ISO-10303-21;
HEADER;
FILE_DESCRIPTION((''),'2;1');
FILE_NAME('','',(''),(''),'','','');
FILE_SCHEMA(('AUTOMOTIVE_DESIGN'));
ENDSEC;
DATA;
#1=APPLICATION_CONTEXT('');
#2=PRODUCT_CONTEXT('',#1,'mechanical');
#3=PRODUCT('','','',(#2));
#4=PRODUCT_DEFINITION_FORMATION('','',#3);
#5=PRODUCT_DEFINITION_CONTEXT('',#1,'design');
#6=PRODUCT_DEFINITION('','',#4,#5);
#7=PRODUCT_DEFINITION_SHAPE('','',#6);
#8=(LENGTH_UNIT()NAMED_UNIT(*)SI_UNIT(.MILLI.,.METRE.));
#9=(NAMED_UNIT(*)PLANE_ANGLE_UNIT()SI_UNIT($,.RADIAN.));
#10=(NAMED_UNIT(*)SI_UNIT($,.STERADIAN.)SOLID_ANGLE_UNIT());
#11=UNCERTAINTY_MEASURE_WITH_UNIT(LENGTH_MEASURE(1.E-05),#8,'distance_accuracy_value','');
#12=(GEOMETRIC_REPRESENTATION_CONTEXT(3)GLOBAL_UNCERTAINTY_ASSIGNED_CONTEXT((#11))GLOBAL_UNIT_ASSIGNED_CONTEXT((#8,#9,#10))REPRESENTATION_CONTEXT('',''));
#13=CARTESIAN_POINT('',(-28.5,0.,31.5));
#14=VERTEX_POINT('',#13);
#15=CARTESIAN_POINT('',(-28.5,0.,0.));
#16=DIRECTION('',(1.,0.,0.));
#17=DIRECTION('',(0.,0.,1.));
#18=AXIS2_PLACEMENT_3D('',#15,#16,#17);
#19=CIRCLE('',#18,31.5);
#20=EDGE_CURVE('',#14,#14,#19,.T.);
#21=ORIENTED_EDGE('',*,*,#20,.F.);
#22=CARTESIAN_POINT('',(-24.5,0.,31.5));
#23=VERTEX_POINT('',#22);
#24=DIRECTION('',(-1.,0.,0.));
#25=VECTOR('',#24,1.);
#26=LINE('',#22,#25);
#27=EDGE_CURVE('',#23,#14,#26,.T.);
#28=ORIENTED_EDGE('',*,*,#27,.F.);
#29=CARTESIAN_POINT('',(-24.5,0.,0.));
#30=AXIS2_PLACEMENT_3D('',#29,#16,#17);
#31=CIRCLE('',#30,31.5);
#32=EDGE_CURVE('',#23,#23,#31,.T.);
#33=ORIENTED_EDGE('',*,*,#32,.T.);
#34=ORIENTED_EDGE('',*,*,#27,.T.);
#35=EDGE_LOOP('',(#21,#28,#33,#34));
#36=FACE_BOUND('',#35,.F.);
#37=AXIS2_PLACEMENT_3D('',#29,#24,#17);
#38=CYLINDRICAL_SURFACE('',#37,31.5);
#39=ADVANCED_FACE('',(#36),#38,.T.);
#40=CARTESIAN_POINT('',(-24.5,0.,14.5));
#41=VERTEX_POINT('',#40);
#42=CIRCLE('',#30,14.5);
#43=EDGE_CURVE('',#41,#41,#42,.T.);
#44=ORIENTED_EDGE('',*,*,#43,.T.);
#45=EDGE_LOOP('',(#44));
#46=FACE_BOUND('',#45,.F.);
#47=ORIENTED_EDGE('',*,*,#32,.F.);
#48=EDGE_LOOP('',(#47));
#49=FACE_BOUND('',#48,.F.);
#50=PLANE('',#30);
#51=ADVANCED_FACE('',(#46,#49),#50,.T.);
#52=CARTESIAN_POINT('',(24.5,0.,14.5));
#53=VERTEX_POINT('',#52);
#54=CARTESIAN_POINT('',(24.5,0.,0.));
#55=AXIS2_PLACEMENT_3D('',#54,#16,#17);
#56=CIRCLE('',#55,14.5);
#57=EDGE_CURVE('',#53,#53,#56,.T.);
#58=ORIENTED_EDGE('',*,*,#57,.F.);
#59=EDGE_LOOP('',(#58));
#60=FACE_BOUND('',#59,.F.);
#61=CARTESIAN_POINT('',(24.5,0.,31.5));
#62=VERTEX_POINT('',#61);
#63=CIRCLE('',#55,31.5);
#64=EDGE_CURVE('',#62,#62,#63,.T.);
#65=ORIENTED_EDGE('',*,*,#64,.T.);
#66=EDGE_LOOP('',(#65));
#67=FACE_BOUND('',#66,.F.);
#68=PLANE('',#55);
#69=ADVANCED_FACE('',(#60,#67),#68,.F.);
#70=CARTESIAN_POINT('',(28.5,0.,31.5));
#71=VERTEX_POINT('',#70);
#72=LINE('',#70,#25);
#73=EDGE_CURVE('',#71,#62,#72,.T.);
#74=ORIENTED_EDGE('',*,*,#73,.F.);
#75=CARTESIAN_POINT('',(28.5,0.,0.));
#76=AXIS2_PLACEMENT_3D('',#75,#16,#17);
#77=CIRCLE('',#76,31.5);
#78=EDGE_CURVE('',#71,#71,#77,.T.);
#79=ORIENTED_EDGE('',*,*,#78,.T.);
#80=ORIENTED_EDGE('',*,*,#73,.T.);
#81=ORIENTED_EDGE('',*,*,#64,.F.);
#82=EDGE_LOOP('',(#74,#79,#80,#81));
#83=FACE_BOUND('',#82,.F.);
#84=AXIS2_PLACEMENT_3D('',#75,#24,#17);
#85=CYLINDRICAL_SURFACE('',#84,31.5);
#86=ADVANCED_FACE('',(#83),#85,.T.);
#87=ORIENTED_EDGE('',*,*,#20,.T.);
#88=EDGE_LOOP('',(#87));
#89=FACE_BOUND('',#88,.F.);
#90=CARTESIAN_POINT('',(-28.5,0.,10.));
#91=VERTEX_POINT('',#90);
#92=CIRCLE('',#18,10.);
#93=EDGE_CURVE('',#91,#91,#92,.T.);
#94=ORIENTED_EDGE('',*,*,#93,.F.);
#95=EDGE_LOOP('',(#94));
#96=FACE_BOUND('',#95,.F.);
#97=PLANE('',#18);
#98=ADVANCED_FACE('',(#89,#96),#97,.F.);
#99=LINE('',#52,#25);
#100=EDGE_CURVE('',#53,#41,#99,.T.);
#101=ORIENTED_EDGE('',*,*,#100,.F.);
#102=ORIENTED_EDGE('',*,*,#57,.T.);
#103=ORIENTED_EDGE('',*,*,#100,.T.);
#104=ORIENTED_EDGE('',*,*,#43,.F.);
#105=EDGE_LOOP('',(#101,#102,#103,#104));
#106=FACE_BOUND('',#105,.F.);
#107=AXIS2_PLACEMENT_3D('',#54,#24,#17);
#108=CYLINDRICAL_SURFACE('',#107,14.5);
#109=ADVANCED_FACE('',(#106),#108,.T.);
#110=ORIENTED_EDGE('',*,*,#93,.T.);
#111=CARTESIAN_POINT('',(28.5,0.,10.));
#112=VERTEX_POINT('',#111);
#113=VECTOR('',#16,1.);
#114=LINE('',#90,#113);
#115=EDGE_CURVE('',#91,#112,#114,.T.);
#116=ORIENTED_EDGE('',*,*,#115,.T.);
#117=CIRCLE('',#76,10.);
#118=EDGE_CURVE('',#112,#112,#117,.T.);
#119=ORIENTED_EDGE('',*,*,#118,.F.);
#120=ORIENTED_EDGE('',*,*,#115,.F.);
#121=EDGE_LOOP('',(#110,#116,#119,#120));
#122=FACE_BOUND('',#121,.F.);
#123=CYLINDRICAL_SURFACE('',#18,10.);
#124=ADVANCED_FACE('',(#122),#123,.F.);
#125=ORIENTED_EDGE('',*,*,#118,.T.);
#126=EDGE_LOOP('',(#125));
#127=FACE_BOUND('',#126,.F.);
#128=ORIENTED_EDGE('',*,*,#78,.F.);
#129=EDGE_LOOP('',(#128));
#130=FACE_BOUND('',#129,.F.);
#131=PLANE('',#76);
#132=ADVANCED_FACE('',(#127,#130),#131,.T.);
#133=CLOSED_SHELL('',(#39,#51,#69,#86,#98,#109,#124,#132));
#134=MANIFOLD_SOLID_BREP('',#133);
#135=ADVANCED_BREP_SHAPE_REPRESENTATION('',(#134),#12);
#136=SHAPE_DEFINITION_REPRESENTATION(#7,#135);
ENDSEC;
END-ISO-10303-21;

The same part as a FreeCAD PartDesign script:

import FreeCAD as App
import Part
import Sketcher

V = App.Vector

doc = App.newDocument("Part")
params = doc.addObject("Spreadsheet::Sheet", "Params")
for row, (alias, value) in enumerate([
    ("sketch1_width", "57 mm"),
    ("sketch1_width2", "4 mm"),
    ("sketch1_height", "17 mm"),
    ("sketch1_height2", "21.5 mm"),
    ("revolution_angle", "360 deg"),
], start=1):
    params.set(f"A{row}", alias)
    params.set(f"B{row}", "=" + value)
    params.setAlias(f"B{row}", alias)

body = doc.addObject("PartDesign::Body", "Body")

# Sketch on XZ plane
sketch1 = body.newObject("Sketcher::SketchObject", "Sketch")
sketch1.AttachmentSupport = (doc.getObject("XZ_Plane"), [""])
sketch1.MapMode = "FlatFace"
sketch1.addGeometry([
    Part.LineSegment(V(-28.5, 10, 0), V(28.5, 10, 0)),  # 0
    Part.LineSegment(V(28.5, 10, 0), V(28.5, 31.5, 0)),  # 1
    Part.LineSegment(V(28.5, 31.5, 0), V(24.5, 31.5, 0)),  # 2
    Part.LineSegment(V(24.5, 31.5, 0), V(24.5, 14.5, 0)),  # 3
    Part.LineSegment(V(24.5, 14.5, 0), V(-24.5, 14.5, 0)),  # 4
    Part.LineSegment(V(-24.5, 14.5, 0), V(-24.5, 31.5, 0)),  # 5
    Part.LineSegment(V(-24.5, 31.5, 0), V(-28.5, 31.5, 0)),  # 6
    Part.LineSegment(V(-28.5, 31.5, 0), V(-28.5, 10, 0)),  # 7
], False)
sketch1.addConstraint([
    Sketcher.Constraint("Coincident", 0, 2, 1, 1),
    Sketcher.Constraint("Coincident", 1, 2, 2, 1),
    Sketcher.Constraint("Coincident", 2, 2, 3, 1),
    Sketcher.Constraint("Coincident", 3, 2, 4, 1),
    Sketcher.Constraint("Coincident", 4, 2, 5, 1),
    Sketcher.Constraint("Coincident", 5, 2, 6, 1),
    Sketcher.Constraint("Coincident", 6, 2, 7, 1),
    Sketcher.Constraint("Coincident", 7, 2, 0, 1),
    Sketcher.Constraint("Horizontal", 0),
    Sketcher.Constraint("Vertical", 1),
    Sketcher.Constraint("Horizontal", 2),
    Sketcher.Constraint("Vertical", 3),
    Sketcher.Constraint("Horizontal", 4),
    Sketcher.Constraint("Vertical", 5),
    Sketcher.Constraint("Horizontal", 6),
    Sketcher.Constraint("Vertical", 7),
    Sketcher.Constraint("Symmetric", 2, 2, 5, 2, -2),
    Sketcher.Constraint("Equal", 2, 6),
    Sketcher.Constraint("DistanceX", 0, 1, 0, 2, 57.0),
    Sketcher.Constraint("DistanceX", 2, 2, 2, 1, 4.0),
    Sketcher.Constraint("DistanceY", 3, 2, 3, 1, 17.0),
    Sketcher.Constraint("DistanceY", 1, 1, 1, 2, 21.5),
    Sketcher.Constraint("DistanceY", -1, 1, 0, 2, 10.0),
])
sketch1.setExpression("Constraints[18]", "Params.sketch1_width")
sketch1.setExpression("Constraints[19]", "Params.sketch1_width2")
sketch1.setExpression("Constraints[20]", "Params.sketch1_height")
sketch1.setExpression("Constraints[21]", "Params.sketch1_height2")
revolution = body.newObject("PartDesign::Revolution", "Revolution")
revolution.Profile = sketch1
revolution.ReferenceAxis = (sketch1, ["H_Axis"])
revolution.setExpression("Angle", "Params.revolution_angle")

doc.recompute()
